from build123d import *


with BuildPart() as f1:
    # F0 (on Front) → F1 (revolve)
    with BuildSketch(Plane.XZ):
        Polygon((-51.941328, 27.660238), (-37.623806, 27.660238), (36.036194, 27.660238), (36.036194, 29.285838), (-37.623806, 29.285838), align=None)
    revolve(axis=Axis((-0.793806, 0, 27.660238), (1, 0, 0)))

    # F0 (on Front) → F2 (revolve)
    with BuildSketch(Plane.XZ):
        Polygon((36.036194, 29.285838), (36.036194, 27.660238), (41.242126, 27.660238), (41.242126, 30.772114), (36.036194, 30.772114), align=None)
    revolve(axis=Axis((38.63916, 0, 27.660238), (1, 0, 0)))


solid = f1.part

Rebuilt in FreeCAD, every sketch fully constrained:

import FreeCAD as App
import Part
import Sketcher

V = App.Vector
Q = App.Units.Quantity

doc = App.newDocument("Part")
body = doc.addObject("PartDesign::Body", "Body")

sketch1 = doc.addObject("Sketcher::SketchObject", "Sketch")
body.addObject(sketch1)
sketch1.AttachmentSupport = (doc.XZ_Plane, [""])
sketch1.MapMode = "FlatFace"
sketch1.addGeometry([
    Part.LineSegment(V(-51.9, 27.7, 0), V(36, 27.7, 0)),
    Part.LineSegment(V(36, 27.7, 0), V(36, 29.3, 0)),
    Part.LineSegment(V(36, 29.3, 0), V(-37.6, 29.3, 0)),
    Part.LineSegment(V(-37.6, 29.3, 0), V(-51.9, 27.7, 0)),
], False)
sketch1.addGeometry(Part.LineSegment(V(-51.9, 27.7, 0), V(36, 27.7, 0)), True)
sketch1.addConstraint([
    Sketcher.Constraint("Coincident", 0, 2, 1, 1),
    Sketcher.Constraint("Coincident", 1, 2, 2, 1),
    Sketcher.Constraint("Coincident", 2, 2, 3, 1),
    Sketcher.Constraint("Coincident", 3, 2, 0, 1),
    Sketcher.Constraint("Horizontal", 0),
    Sketcher.Constraint("Vertical", 1),
    Sketcher.Constraint("Horizontal", 2),
    Sketcher.Constraint("Horizontal", 4),
    Sketcher.Constraint("Coincident", 4, 1, 3, 2),
    Sketcher.Constraint("Vertical", 1, 2, 4, 2),
    Sketcher.Constraint("DistanceX", 2, 2, 2, 1, Q("2.9 in")),
    Sketcher.Constraint("DistanceY", 1, 1, 1, 2, Q("0.064 in")),
    Sketcher.Constraint("DistanceX", 0, 1, 0, 2, Q("87.977522 mm")),
    Sketcher.Constraint("DistanceX", -1, 1, 0, 2, Q("36.036194 mm")),
    Sketcher.Constraint("DistanceY", -1, 1, 0, 2, Q("27.660238 mm")),
])
revolution = doc.addObject("PartDesign::Revolution", "Revolution")
body.addObject(revolution)
revolution.Profile = sketch1
revolution.ReferenceAxis = (sketch1, ["Axis0"])
revolution.Angle = 360

sketch2 = doc.addObject("Sketcher::SketchObject", "Sketch001")
body.addObject(sketch2)
sketch2.AttachmentSupport = (doc.XZ_Plane, [""])
sketch2.MapMode = "FlatFace"
sketch2.addGeometry([
    Part.LineSegment(V(36, 27.7, 0), V(41.2, 27.7, 0)),
    Part.LineSegment(V(41.2, 27.7, 0), V(41.2, 30.8, 0)),
    Part.LineSegment(V(41.2, 30.8, 0), V(36, 30.8, 0)),
    Part.LineSegment(V(36, 30.8, 0), V(36, 27.7, 0)),
], False)
sketch2.addGeometry(Part.LineSegment(V(36, 27.7, 0), V(41.2, 27.7, 0)), True)
sketch2.addConstraint([
    Sketcher.Constraint("Coincident", 0, 2, 1, 1),
    Sketcher.Constraint("Coincident", 1, 2, 2, 1),
    Sketcher.Constraint("Coincident", 2, 2, 3, 1),
    Sketcher.Constraint("Coincident", 3, 2, 0, 1),
    Sketcher.Constraint("Horizontal", 0),
    Sketcher.Constraint("Vertical", 1),
    Sketcher.Constraint("Horizontal", 2),
    Sketcher.Constraint("Vertical", 3),
    Sketcher.Constraint("Horizontal", 4),
    Sketcher.Constraint("Coincident", 4, 1, 3, 2),
    Sketcher.Constraint("Vertical", 1, 2, 4, 2),
    Sketcher.Constraint("DistanceX", 0, 1, 0, 2, Q("5.205932 mm")),
    Sketcher.Constraint("DistanceY", 1, 1, 1, 2, Q("3.111876 mm")),
    Sketcher.Constraint("DistanceX", -1, 1, 0, 2, Q("41.242126 mm")),
    Sketcher.Constraint("DistanceY", -1, 1, 0, 2, Q("27.660238 mm")),
])
revolution2 = doc.addObject("PartDesign::Revolution", "Revolution001")
body.addObject(revolution2)
revolution2.Profile = sketch2
revolution2.ReferenceAxis = (sketch2, ["Axis0"])
revolution2.Angle = 360

doc.recompute()
